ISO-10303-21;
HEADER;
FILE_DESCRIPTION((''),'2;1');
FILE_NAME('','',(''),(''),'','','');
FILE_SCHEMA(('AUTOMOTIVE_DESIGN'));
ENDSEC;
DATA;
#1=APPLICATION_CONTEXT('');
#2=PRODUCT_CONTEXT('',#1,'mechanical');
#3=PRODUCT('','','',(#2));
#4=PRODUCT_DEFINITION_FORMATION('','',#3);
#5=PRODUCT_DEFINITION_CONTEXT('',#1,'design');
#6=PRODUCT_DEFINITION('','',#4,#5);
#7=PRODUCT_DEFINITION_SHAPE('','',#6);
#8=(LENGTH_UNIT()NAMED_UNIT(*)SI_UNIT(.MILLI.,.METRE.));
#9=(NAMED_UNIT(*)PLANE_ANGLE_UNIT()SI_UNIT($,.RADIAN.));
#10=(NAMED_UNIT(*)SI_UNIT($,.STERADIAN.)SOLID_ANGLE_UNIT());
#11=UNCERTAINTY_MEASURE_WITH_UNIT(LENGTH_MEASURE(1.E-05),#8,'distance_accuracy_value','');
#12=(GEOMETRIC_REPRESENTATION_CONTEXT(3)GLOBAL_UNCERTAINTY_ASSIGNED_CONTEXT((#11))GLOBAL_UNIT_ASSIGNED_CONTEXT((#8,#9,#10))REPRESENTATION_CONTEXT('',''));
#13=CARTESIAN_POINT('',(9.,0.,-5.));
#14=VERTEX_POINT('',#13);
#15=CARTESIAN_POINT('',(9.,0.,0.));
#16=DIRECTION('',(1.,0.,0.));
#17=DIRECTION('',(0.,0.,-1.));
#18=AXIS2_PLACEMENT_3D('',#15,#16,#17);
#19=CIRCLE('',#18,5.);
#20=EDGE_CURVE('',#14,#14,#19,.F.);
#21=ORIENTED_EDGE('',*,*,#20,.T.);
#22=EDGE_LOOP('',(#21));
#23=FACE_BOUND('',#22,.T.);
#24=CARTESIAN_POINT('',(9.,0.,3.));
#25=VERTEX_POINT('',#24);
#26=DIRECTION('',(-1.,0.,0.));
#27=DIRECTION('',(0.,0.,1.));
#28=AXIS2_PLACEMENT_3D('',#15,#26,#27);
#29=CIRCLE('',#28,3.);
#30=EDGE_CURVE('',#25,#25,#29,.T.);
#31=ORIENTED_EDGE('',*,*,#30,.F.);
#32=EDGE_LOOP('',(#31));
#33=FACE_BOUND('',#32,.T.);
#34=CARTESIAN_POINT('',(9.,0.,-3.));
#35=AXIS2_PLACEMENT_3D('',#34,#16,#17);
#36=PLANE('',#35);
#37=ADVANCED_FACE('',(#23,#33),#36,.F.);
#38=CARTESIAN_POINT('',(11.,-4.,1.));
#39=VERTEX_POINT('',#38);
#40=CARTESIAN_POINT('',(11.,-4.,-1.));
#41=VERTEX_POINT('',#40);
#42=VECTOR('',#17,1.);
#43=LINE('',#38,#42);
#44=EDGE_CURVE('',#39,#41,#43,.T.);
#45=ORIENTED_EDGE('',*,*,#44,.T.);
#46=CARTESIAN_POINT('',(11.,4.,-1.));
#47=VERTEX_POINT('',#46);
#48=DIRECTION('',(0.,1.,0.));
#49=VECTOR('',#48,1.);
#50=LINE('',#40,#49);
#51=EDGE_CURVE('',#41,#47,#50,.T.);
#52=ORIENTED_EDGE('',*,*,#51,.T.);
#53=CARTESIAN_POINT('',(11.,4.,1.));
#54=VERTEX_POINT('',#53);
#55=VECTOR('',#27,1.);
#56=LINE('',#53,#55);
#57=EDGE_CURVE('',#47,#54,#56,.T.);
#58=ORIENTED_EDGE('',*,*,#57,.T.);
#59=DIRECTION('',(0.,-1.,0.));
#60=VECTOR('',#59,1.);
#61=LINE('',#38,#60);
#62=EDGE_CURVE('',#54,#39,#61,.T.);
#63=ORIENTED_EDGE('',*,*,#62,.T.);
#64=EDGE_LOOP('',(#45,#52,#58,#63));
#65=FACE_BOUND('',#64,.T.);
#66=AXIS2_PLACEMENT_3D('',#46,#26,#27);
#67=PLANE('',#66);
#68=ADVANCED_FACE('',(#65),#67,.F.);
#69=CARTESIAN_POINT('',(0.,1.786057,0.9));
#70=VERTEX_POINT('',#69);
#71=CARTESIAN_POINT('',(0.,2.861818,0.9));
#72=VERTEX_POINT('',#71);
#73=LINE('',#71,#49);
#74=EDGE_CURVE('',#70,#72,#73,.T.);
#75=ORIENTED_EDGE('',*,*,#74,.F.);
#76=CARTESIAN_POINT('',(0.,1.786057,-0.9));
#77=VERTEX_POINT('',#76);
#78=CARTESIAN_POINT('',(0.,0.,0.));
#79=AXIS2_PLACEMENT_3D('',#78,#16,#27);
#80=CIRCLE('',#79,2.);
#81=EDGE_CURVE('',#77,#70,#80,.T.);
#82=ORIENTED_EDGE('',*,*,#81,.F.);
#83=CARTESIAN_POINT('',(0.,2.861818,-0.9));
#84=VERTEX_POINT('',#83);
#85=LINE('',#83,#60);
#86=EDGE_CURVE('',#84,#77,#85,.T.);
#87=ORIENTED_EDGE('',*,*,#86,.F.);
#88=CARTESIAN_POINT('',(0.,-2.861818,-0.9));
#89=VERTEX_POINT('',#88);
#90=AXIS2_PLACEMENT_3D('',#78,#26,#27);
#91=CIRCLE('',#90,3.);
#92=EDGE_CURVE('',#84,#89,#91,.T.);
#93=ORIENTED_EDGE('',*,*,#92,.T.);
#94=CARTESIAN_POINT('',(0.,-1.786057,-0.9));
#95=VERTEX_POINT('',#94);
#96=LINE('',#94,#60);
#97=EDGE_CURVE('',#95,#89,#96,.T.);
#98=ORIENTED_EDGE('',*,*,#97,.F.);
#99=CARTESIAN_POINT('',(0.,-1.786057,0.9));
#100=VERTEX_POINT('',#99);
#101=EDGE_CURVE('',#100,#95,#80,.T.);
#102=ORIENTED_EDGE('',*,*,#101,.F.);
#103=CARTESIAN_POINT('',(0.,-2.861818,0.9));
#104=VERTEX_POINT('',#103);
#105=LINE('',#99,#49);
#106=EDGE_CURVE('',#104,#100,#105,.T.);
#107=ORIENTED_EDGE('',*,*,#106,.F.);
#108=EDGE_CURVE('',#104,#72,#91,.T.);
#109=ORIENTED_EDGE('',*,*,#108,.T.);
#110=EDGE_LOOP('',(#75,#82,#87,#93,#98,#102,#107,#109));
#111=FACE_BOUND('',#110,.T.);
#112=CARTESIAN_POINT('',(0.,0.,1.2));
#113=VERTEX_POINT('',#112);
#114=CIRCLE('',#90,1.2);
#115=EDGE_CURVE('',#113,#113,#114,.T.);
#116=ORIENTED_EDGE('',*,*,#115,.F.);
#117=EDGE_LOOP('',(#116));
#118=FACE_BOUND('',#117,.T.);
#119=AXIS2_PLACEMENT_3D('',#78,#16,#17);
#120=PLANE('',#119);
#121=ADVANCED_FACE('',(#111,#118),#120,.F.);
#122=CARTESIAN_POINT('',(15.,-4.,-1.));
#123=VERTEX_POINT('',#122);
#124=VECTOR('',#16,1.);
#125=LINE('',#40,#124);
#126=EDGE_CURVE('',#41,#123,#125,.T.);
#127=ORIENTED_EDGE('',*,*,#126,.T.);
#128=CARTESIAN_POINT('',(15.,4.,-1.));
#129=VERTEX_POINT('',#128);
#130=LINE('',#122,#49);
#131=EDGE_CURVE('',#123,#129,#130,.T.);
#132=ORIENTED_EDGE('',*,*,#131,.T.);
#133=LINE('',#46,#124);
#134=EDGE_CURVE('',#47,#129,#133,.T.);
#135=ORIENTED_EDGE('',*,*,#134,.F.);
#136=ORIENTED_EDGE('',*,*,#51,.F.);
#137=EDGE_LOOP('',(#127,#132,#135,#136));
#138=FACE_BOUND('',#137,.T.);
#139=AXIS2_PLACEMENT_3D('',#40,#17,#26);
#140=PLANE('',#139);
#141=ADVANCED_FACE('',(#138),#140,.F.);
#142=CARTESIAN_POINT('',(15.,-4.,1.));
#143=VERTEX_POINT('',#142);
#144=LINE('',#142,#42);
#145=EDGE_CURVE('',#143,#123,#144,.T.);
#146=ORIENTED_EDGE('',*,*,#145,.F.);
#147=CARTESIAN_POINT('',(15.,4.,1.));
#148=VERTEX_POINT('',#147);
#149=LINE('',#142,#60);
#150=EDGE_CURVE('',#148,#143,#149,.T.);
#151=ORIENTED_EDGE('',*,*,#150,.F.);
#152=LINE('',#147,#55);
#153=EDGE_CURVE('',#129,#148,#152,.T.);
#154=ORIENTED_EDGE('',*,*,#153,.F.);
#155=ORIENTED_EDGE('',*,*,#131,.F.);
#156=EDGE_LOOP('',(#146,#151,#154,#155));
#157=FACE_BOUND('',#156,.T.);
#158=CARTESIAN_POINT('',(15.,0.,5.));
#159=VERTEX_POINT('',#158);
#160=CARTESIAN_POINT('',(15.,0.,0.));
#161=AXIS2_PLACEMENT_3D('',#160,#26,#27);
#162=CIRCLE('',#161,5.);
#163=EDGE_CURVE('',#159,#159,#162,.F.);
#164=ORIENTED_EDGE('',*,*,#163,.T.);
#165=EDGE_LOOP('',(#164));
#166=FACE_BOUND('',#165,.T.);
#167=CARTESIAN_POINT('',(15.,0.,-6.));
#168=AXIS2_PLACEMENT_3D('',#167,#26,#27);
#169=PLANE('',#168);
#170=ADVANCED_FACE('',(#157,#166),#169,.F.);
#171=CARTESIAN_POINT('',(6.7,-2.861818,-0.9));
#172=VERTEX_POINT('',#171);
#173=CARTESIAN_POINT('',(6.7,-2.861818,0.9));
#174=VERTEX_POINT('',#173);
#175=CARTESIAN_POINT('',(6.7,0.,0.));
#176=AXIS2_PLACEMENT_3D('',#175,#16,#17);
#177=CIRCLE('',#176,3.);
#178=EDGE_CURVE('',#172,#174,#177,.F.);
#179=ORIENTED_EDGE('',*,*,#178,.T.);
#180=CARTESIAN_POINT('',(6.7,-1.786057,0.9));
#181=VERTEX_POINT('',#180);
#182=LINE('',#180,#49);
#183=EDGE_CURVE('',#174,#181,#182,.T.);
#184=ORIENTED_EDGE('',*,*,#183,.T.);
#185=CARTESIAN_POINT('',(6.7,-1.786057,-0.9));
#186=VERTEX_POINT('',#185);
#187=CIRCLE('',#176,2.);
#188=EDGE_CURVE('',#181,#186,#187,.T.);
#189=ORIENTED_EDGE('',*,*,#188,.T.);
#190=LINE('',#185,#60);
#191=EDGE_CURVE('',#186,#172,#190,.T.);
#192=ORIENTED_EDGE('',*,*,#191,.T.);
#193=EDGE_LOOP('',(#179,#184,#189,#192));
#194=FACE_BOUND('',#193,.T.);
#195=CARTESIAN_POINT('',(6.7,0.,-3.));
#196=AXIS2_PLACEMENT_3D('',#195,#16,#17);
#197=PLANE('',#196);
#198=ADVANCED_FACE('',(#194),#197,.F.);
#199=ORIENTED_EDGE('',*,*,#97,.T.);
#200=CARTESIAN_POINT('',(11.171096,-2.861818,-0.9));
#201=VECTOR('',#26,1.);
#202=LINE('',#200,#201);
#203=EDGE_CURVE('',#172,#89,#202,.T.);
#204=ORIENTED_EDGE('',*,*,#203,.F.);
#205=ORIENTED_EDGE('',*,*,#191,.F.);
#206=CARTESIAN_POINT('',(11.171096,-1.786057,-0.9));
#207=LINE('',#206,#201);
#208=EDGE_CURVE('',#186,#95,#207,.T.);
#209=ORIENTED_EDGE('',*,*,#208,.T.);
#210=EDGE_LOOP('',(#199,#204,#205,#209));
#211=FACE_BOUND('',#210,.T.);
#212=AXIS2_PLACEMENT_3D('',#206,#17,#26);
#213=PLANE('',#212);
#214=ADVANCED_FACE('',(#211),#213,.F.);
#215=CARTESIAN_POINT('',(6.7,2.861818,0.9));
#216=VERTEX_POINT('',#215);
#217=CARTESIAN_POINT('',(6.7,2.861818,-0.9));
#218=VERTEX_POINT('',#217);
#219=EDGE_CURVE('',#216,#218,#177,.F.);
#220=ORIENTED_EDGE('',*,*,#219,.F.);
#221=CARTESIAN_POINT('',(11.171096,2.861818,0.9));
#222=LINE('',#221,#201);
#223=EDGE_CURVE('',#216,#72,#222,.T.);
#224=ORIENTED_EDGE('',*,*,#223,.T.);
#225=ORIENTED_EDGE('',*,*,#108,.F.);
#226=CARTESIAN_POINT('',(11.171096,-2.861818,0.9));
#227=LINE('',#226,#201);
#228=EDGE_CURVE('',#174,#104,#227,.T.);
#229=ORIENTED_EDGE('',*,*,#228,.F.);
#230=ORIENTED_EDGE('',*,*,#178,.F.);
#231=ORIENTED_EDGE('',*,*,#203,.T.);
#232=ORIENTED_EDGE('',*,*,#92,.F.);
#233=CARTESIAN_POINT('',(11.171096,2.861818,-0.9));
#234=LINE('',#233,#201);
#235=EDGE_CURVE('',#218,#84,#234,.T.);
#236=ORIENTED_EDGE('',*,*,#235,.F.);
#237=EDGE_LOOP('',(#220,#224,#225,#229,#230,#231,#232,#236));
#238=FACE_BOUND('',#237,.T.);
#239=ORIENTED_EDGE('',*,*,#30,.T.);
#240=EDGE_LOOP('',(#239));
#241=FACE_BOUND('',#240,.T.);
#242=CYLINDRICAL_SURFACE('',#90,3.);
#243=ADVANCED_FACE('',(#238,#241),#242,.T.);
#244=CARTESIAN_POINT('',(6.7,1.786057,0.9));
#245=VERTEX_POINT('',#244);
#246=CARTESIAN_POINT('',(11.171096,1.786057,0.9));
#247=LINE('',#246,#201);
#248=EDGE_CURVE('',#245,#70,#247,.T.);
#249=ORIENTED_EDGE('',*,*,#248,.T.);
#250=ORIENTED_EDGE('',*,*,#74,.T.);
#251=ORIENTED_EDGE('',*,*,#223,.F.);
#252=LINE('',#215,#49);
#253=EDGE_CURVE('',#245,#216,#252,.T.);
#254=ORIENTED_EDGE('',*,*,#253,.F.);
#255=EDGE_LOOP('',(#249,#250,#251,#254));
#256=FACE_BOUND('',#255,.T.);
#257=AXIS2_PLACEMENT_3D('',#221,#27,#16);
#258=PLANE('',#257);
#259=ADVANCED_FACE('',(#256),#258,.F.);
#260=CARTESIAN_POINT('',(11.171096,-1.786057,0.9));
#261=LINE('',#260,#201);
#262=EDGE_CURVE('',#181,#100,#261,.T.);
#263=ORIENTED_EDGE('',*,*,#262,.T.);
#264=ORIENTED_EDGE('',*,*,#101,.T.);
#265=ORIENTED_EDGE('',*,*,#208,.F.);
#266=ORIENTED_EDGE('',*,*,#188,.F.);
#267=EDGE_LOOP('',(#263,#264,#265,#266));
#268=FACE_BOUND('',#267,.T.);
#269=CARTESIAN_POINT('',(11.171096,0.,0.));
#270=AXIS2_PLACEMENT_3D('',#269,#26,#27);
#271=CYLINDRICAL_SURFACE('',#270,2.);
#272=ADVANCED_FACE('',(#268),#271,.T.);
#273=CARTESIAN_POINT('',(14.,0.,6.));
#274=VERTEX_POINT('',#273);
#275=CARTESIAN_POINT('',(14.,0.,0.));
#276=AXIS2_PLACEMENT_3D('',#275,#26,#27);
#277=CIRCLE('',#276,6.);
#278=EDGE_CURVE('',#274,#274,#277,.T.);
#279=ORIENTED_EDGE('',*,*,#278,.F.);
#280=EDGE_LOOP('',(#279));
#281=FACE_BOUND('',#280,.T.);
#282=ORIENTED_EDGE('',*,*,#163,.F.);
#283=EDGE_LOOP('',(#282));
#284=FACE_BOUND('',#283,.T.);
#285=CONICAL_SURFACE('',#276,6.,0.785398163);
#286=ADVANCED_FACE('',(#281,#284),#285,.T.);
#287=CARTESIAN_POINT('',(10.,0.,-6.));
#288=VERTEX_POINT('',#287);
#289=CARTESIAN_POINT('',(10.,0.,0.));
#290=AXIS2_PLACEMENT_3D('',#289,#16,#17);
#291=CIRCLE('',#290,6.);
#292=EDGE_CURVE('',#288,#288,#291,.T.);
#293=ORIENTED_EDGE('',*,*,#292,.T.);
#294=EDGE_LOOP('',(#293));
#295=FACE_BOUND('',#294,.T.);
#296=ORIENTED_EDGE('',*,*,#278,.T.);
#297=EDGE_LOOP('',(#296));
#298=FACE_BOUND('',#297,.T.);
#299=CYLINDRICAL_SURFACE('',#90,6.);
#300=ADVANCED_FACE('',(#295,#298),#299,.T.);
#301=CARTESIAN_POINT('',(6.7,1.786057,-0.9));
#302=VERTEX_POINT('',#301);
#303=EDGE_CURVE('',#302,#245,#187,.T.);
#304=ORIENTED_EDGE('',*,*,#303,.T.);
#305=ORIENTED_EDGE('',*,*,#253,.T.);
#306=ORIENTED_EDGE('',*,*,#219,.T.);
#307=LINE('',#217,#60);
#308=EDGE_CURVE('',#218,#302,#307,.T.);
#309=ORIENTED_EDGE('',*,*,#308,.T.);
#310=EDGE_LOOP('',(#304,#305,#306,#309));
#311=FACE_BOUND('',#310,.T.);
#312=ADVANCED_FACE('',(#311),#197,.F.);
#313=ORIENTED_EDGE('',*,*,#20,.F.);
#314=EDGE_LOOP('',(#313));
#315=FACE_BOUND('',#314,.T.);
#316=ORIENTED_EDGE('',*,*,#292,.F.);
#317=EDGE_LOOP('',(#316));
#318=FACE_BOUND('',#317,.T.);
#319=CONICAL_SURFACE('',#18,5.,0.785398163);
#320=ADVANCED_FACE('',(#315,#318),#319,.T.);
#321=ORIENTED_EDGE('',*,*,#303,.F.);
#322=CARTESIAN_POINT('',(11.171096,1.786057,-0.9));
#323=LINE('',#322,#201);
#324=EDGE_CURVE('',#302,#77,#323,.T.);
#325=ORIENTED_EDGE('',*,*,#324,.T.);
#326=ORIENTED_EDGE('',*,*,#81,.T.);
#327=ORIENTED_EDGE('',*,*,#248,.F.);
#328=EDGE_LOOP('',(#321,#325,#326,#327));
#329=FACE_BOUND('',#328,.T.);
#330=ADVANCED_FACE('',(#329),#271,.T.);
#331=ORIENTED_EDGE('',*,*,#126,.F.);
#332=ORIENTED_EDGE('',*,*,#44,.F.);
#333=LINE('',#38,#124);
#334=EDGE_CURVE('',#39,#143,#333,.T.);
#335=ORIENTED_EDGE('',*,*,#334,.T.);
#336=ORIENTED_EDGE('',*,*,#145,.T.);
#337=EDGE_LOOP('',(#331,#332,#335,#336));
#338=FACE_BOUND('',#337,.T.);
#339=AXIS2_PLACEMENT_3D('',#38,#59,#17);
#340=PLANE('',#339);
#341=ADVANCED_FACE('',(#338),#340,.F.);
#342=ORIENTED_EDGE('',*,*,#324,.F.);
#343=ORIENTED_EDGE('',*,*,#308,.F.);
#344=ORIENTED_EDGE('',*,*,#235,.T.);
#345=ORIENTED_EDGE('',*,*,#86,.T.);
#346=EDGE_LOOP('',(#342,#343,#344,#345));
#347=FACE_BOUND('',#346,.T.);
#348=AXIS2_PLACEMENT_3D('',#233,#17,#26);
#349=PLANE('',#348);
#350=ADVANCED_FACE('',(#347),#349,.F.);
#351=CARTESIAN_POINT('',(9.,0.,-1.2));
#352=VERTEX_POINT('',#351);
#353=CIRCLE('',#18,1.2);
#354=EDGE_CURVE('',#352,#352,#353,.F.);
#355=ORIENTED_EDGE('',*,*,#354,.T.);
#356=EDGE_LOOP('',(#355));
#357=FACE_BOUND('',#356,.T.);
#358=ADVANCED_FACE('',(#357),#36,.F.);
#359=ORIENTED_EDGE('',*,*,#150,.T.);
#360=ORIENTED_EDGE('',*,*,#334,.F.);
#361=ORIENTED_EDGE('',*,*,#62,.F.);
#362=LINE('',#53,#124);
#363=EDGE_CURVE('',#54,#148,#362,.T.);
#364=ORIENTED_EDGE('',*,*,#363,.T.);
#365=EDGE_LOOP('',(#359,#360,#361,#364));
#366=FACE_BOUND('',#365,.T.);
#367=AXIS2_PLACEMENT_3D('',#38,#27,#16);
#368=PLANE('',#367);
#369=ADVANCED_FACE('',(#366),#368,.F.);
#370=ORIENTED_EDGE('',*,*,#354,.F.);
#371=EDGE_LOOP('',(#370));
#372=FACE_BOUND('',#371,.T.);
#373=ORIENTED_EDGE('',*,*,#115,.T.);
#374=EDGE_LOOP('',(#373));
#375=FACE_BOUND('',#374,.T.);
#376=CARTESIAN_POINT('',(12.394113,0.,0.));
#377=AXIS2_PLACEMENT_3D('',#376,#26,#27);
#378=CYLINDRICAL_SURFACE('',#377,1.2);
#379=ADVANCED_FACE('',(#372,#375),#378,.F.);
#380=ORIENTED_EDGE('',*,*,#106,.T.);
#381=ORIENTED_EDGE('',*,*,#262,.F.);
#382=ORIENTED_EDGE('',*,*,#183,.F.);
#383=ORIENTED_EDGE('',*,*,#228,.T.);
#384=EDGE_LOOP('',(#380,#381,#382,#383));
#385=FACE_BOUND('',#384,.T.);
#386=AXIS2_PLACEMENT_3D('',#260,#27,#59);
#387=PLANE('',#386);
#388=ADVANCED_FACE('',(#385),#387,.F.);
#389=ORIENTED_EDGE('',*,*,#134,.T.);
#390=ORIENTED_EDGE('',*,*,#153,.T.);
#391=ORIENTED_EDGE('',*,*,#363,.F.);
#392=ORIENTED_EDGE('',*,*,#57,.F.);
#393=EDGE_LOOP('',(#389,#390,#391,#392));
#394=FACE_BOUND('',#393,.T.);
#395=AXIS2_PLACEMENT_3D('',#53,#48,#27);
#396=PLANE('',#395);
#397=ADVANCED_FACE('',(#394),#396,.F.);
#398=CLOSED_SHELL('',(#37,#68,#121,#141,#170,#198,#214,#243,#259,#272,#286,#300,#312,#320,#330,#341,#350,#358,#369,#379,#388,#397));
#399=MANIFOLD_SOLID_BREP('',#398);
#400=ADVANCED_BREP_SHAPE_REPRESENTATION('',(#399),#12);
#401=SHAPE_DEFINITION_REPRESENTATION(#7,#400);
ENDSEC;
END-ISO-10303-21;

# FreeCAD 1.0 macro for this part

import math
import FreeCAD as App
import Part
import Sketcher


def edges_at(feature, points):
    """Names of the edges that pass closest to the given points."""
    edges = feature.Shape.Edges
    near = lambda p: min(range(len(edges)), key=lambda i: edges[i].distToShape(Part.Vertex(*p))[0])
    return sorted({f"Edge{near(p) + 1}" for p in points})

doc = App.newDocument("Part")
params = doc.addObject("Spreadsheet::Sheet", "Params")
for row, (alias, value) in enumerate([
    ("sketch1_width", "15 mm"),
    ("sketch1_width2", "6 mm"),
    ("revolution_angle", "360 deg"),
    ("sketch2_diameter", "2.4 mm"),
    ("pocket1_length", "9 mm"),
    ("sketch3_width", "8 mm"),
    ("sketch3_height", "2 mm"),
    ("pocket2_length", "4 mm"),
    ("chamfer_size", "1 mm"),
    ("sketch4_radius", "2 mm"),
    ("sketch4_radius2", "3 mm"),
    ("pocket3_length", "6.7 mm"),
], start=1):
    params.set(f"A{row}", alias)
    params.set(f"B{row}", "=" + value)
    params.setAlias(f"B{row}", alias)

body = doc.addObject("PartDesign::Body", "Body")

sketch1 = body.newObject("Sketcher::SketchObject", "Sketch")
sketch1.AttachmentSupport = (doc.getObject("XZ_Plane"), [""])
sketch1.MapMode = "FlatFace"
sketch1.addGeometry(Part.LineSegment(App.Vector(0, -3, 0), App.Vector(0, 0, 0)), False)
sketch1.addGeometry(Part.LineSegment(App.Vector(0, 0, 0), App.Vector(15, 0, 0)), False)
sketch1.addGeometry(Part.LineSegment(App.Vector(15, 0, 0), App.Vector(15, -6, 0)), False)
sketch1.addGeometry(Part.LineSegment(App.Vector(15, -6, 0), App.Vector(9, -6, 0)), False)
sketch1.addGeometry(Part.LineSegment(App.Vector(9, -6, 0), App.Vector(9, -3, 0)), False)
sketch1.addGeometry(Part.LineSegment(App.Vector(9, -3, 0), App.Vector(0, -3, 0)), False)
sketch1.addConstraint(Sketcher.Constraint("Coincident", 0, 2, 1, 1))
sketch1.addConstraint(Sketcher.Constraint("Coincident", 1, 2, 2, 1))
sketch1.addConstraint(Sketcher.Constraint("Coincident", 2, 2, 3, 1))
sketch1.addConstraint(Sketcher.Constraint("Coincident", 3, 2, 4, 1))
sketch1.addConstraint(Sketcher.Constraint("Coincident", 4, 2, 5, 1))
sketch1.addConstraint(Sketcher.Constraint("Coincident", 5, 2, 0, 1))
sketch1.addConstraint(Sketcher.Constraint("Vertical", 0))
sketch1.addConstraint(Sketcher.Constraint("Horizontal", 1))
sketch1.addConstraint(Sketcher.Constraint("Vertical", 2))
sketch1.addConstraint(Sketcher.Constraint("Horizontal", 3))
sketch1.addConstraint(Sketcher.Constraint("Vertical", 4))
sketch1.addConstraint(Sketcher.Constraint("Horizontal", 5))
sketch1.addConstraint(Sketcher.Constraint("Coincident", 0, 2, -1, 1))
sketch1.addConstraint(Sketcher.Constraint("Equal", 3, 2))
sketch1.addConstraint(Sketcher.Constraint("Equal", 0, 4))
sketch1.addConstraint(Sketcher.Constraint("DistanceX", 1, 1, 1, 2, 15.0))
sketch1.addConstraint(Sketcher.Constraint("DistanceX", 3, 2, 3, 1, 6.0))
sketch1.setExpression("Constraints[15]", "Params.sketch1_width")
sketch1.setExpression("Constraints[16]", "Params.sketch1_width2")
revolution = body.newObject("PartDesign::Revolution", "Revolution")
revolution.Profile = sketch1
revolution.ReferenceAxis = (sketch1, ["H_Axis"])
revolution.setExpression("Angle", "Params.revolution_angle")

sketch2 = body.newObject("Sketcher::SketchObject", "Sketch001")
sketch2.AttachmentSupport = (doc.getObject("YZ_Plane"), [""])
sketch2.MapMode = "FlatFace"
sketch2.addGeometry(Part.Circle(App.Vector(0, 0, 0), App.Vector(0, 0, 1), 1.2), False)
sketch2.addConstraint(Sketcher.Constraint("Coincident", 0, 3, -1, 1))
sketch2.addConstraint(Sketcher.Constraint("Diameter", 0, 2.4))
sketch2.setExpression("Constraints[1]", "Params.sketch2_diameter")
pocket1 = body.newObject("PartDesign::Pocket", "Pocket")
pocket1.Profile = sketch2
pocket1.setExpression("Length", "Params.pocket1_length")
pocket1.Reversed = True

sketch3 = body.newObject("Sketcher::SketchObject", "Sketch002")
sketch3.AttachmentSupport = (doc.getObject("YZ_Plane"), [""])
sketch3.MapMode = "FlatFace"
sketch3.AttachmentOffset = App.Placement(App.Vector(0, 0, 15), App.Rotation())
sketch3.addGeometry(Part.LineSegment(App.Vector(4, 1, 0), App.Vector(-4, 1, 0)), False)
sketch3.addGeometry(Part.LineSegment(App.Vector(-4, 1, 0), App.Vector(-4, -1, 0)), False)
sketch3.addGeometry(Part.LineSegment(App.Vector(-4, -1, 0), App.Vector(4, -1, 0)), False)
sketch3.addGeometry(Part.LineSegment(App.Vector(4, -1, 0), App.Vector(4, 1, 0)), False)
sketch3.addConstraint(Sketcher.Constraint("Coincident", 0, 2, 1, 1))
sketch3.addConstraint(Sketcher.Constraint("Coincident", 1, 2, 2, 1))
sketch3.addConstraint(Sketcher.Constraint("Coincident", 2, 2, 3, 1))
sketch3.addConstraint(Sketcher.Constraint("Coincident", 3, 2, 0, 1))
sketch3.addConstraint(Sketcher.Constraint("Horizontal", 0))
sketch3.addConstraint(Sketcher.Constraint("Vertical", 1))
sketch3.addConstraint(Sketcher.Constraint("Horizontal", 2))
sketch3.addConstraint(Sketcher.Constraint("Vertical", 3))
sketch3.addConstraint(Sketcher.Constraint("Symmetric", 0, 2, 2, 2, -1, 1))
sketch3.addConstraint(Sketcher.Constraint("DistanceX", 0, 2, 0, 1, 8.0))
sketch3.addConstraint(Sketcher.Constraint("DistanceY", 1, 2, 1, 1, 2.0))
sketch3.setExpression("Constraints[9]", "Params.sketch3_width")
sketch3.setExpression("Constraints[10]", "Params.sketch3_height")
pocket2 = body.newObject("PartDesign::Pocket", "Pocket001")
pocket2.Profile = sketch3
pocket2.setExpression("Length", "Params.pocket2_length")
doc.recompute()

chamfer = body.newObject("PartDesign::Chamfer", "Chamfer")
chamfer.Base = (pocket2, edges_at(pocket2, [(15, 0, -6), (9, 0, -6)]))
chamfer.setExpression("Size", "Params.chamfer_size")

sketch4 = body.newObject("Sketcher::SketchObject", "Sketch003")
sketch4.AttachmentSupport = (doc.getObject("YZ_Plane"), [""])
sketch4.MapMode = "FlatFace"
sketch4.AttachmentOffset = App.Placement(App.Vector(0, 0, 6.7), App.Rotation())
sketch4.addGeometry(Part.LineSegment(App.Vector(2.9, -0.9, 0), App.Vector(1.8, -0.9, 0)), False)
sketch4.addGeometry(Part.ArcOfCircle(Part.Circle(App.Vector(0, 0, 0), App.Vector(0, 0, 1), 2), math.radians(-27), math.radians(27)), False)
sketch4.addGeometry(Part.LineSegment(App.Vector(1.8, 0.9, 0), App.Vector(2.9, 0.9, 0)), False)
sketch4.addGeometry(Part.ArcOfCircle(Part.Circle(App.Vector(0, 0, 0), App.Vector(0, 0, 1), 3), math.radians(-17), math.radians(17)), False)
sketch4.addGeometry(Part.LineSegment(App.Vector(-1.8, -0.9, 0), App.Vector(-2.9, -0.9, 0)), False)
sketch4.addGeometry(Part.ArcOfCircle(Part.Circle(App.Vector(0, 0, 0), App.Vector(0, 0, 1), 3), math.radians(163), math.radians(197)), False)
sketch4.addGeometry(Part.LineSegment(App.Vector(-2.9, 0.9, 0), App.Vector(-1.8, 0.9, 0)), False)
sketch4.addGeometry(Part.ArcOfCircle(Part.Circle(App.Vector(0, 0, 0), App.Vector(0, 0, 1), 2), math.radians(153), math.radians(207)), False)
sketch4.addConstraint(Sketcher.Constraint("Coincident", 0, 2, 1, 1))
sketch4.addConstraint(Sketcher.Constraint("Coincident", 1, 2, 2, 1))
sketch4.addConstraint(Sketcher.Constraint("Coincident", 2, 2, 3, 2))
sketch4.addConstraint(Sketcher.Constraint("Coincident", 3, 1, 0, 1))
sketch4.addConstraint(Sketcher.Constraint("Coincident", 4, 2, 5, 2))
sketch4.addConstraint(Sketcher.Constraint("Coincident", 5, 1, 6, 1))
sketch4.addConstraint(Sketcher.Constraint("Coincident", 6, 2, 7, 1))
sketch4.addConstraint(Sketcher.Constraint("Coincident", 7, 2, 4, 1))
sketch4.addConstraint(Sketcher.Constraint("Horizontal", 0))
sketch4.addConstraint(Sketcher.Constraint("Horizontal", 2))
sketch4.addConstraint(Sketcher.Constraint("Horizontal", 4))
sketch4.addConstraint(Sketcher.Constraint("Horizontal", 6))
sketch4.addConstraint(Sketcher.Constraint("Coincident", 1, 3, -1, 1))
sketch4.addConstraint(Sketcher.Constraint("Coincident", 3, 3, -1, 1))
sketch4.addConstraint(Sketcher.Constraint("Coincident", 5, 3, -1, 1))
sketch4.addConstraint(Sketcher.Constraint("Coincident", 7, 3, -1, 1))
sketch4.addConstraint(Sketcher.Constraint("Equal", 3, 5))
sketch4.addConstraint(Sketcher.Constraint("Equal", 1, 7))
sketch4.addConstraint(Sketcher.Constraint("Horizontal", 3, 1, 4, 2))
sketch4.addConstraint(Sketcher.Constraint("Horizontal", 2, 2, 5, 1))
sketch4.addConstraint(Sketcher.Constraint("Vertical", 0, 2, 1, 2))
sketch4.addConstraint(Sketcher.Constraint("Radius", 1, 2.0))
sketch4.addConstraint(Sketcher.Constraint("Radius", 3, 3.0))
sketch4.addConstraint(Sketcher.Constraint("DistanceY", 0, 2, -1, 1, 0.9))
sketch4.setExpression("Constraints[21]", "Params.sketch4_radius")
sketch4.setExpression("Constraints[22]", "Params.sketch4_radius2")
pocket3 = body.newObject("PartDesign::Pocket", "Pocket002")
pocket3.Profile = sketch4
pocket3.setExpression("Length", "Params.pocket3_length")

doc.recompute()
